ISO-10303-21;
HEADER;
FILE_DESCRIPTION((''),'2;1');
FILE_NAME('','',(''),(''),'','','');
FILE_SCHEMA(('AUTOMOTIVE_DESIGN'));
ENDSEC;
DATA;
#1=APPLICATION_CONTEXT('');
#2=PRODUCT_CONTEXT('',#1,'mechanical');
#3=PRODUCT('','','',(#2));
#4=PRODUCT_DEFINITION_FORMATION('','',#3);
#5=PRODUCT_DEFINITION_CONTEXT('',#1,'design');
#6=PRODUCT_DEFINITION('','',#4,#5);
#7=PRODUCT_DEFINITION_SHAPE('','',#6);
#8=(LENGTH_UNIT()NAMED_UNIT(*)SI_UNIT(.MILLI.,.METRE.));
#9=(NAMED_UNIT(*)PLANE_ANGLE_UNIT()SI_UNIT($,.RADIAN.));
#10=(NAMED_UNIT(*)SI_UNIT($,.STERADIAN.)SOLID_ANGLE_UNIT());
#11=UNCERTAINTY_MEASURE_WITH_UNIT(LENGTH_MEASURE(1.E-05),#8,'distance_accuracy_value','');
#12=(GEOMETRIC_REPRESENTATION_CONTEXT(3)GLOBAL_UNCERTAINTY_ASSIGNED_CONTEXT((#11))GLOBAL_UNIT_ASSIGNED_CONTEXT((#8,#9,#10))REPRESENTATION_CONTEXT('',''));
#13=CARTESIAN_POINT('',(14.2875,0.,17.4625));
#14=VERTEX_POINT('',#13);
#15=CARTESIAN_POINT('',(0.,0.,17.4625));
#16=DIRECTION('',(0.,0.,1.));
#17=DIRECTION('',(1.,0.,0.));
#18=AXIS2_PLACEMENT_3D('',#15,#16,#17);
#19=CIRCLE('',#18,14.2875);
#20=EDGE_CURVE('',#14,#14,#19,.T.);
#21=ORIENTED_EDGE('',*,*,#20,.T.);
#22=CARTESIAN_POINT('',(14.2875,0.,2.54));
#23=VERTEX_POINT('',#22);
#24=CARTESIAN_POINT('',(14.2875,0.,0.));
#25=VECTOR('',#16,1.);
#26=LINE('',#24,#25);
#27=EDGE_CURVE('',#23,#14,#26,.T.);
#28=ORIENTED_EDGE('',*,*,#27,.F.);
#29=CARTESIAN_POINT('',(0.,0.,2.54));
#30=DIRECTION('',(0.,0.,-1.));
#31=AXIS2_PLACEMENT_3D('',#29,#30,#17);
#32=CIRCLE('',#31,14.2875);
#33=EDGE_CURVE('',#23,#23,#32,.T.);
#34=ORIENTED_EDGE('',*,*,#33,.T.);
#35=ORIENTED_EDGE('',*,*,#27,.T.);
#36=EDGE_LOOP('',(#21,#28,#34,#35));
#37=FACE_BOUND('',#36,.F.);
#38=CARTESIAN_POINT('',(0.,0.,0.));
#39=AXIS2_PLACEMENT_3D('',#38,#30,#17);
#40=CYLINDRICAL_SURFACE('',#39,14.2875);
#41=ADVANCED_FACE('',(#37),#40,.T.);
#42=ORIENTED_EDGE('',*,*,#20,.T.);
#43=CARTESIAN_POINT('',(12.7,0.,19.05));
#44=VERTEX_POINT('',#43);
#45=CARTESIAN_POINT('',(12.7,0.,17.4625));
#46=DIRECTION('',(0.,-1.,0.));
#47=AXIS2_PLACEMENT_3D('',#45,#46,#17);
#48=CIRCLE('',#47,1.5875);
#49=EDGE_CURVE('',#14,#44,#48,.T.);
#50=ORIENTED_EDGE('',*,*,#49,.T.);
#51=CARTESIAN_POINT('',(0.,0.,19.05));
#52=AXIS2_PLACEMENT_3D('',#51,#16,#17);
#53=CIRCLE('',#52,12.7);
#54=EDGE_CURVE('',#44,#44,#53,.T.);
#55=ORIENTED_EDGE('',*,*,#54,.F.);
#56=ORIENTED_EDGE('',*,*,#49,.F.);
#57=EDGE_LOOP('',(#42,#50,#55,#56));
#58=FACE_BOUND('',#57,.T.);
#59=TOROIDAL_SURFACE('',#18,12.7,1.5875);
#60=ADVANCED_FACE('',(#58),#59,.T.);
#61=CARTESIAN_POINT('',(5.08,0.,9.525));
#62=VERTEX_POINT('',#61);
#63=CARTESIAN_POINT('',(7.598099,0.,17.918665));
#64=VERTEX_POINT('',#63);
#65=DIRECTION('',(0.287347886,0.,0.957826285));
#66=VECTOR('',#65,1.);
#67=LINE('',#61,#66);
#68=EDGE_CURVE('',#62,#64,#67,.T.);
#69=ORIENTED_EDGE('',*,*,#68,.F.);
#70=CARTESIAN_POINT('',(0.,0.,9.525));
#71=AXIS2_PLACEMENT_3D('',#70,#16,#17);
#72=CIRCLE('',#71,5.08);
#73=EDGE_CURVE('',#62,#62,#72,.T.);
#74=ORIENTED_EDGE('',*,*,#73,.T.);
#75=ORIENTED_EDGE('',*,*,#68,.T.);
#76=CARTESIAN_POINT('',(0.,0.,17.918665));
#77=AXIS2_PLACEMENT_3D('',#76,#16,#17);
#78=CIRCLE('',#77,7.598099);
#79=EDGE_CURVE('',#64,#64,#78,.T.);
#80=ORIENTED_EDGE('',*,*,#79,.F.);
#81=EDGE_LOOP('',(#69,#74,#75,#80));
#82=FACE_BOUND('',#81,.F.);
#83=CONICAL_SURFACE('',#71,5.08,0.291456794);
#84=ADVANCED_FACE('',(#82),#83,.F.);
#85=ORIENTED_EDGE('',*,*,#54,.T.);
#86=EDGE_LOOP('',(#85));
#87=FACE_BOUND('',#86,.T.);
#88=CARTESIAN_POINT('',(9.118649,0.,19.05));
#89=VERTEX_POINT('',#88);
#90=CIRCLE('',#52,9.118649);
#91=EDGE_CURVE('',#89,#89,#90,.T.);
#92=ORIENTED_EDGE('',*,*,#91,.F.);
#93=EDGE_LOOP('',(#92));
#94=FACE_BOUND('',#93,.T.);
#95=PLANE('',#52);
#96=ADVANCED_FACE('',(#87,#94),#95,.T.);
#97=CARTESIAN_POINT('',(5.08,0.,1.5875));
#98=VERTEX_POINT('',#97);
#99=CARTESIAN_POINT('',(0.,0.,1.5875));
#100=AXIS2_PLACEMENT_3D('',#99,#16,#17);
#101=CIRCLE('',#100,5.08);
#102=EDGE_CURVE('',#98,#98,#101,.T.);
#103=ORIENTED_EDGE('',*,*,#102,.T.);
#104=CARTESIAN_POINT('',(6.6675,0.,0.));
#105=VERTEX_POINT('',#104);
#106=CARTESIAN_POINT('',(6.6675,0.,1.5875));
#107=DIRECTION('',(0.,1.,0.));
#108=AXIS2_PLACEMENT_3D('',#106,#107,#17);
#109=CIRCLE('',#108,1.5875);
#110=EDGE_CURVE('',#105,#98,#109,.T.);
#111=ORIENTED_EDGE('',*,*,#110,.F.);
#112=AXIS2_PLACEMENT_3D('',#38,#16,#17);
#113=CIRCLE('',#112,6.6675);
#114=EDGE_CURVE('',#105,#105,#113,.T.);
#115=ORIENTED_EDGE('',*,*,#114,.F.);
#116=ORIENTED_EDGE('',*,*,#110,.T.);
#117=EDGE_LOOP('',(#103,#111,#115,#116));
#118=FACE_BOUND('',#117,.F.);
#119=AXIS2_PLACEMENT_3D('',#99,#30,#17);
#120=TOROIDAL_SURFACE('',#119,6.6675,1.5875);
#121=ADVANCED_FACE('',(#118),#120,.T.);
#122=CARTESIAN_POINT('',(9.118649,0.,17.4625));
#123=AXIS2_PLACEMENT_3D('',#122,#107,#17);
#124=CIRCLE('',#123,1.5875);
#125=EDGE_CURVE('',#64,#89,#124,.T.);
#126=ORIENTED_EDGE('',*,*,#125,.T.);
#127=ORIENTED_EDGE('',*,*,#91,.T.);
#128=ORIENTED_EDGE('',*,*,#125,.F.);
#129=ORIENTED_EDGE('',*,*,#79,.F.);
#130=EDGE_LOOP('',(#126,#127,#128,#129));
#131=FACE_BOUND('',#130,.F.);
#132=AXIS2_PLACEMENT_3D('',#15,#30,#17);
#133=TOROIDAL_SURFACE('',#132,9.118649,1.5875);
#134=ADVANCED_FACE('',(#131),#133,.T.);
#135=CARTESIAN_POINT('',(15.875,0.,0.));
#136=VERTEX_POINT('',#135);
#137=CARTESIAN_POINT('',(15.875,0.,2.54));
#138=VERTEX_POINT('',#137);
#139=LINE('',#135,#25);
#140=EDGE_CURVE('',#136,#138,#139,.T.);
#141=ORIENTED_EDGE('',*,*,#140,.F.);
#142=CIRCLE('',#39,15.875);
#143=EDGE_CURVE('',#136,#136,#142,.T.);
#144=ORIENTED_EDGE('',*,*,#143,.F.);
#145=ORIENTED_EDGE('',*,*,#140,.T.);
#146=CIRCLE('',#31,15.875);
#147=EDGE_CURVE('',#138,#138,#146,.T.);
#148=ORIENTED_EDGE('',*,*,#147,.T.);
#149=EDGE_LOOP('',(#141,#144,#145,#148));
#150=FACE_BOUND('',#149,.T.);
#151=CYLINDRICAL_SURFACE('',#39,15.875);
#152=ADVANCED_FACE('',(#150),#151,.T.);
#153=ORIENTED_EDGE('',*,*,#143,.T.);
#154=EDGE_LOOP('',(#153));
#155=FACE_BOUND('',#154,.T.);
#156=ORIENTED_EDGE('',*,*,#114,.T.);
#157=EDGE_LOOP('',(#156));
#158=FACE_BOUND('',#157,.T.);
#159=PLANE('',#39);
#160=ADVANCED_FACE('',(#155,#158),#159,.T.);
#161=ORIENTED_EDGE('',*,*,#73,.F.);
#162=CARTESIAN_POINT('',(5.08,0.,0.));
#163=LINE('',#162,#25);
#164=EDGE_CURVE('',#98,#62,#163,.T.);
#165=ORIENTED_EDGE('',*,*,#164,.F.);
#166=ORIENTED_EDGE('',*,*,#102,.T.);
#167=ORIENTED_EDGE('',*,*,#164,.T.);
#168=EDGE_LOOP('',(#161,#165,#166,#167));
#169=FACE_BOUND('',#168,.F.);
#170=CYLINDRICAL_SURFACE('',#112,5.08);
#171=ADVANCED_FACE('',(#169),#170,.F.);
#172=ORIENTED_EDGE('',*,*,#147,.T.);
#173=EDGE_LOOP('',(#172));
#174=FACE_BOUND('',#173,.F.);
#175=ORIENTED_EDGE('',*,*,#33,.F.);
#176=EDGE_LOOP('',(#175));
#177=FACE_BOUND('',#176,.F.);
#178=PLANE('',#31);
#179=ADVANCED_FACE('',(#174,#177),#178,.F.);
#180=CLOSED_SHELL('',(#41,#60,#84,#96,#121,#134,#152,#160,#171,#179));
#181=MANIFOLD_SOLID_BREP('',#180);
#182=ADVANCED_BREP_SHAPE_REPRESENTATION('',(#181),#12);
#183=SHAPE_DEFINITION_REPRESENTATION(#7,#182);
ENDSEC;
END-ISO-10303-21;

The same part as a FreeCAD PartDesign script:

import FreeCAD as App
import Part
import Sketcher
Q = App.Units.Quantity


def edges_at(feature, points):
    """Names of the edges that pass closest to the given points."""
    edges = feature.Shape.Edges
    near = lambda p: min(range(len(edges)), key=lambda i: edges[i].distToShape(Part.Vertex(*p))[0])
    return sorted({f"Edge{near(p) + 1}" for p in points})


def add_polygon(sketch, points):
    """Adds a closed chain of lines whose ends are joined by coincident constraints."""
    first, n = sketch.GeometryCount, len(points)
    for a, b in zip(points, points[1:] + points[:1]):
        sketch.addGeometry(Part.LineSegment(App.Vector(*a, 0), App.Vector(*b, 0)), False)
    for i in range(n):
        sketch.addConstraint(Sketcher.Constraint("Coincident", first + i, 2, first + (i + 1) % n, 1))

doc = App.newDocument("Part")
body = doc.addObject("PartDesign::Body", "Body")

sketch1 = body.newObject("Sketcher::SketchObject", "Sketch")
sketch1.AttachmentSupport = (doc.getObject("XY_Plane"), [""])
sketch1.MapMode = "FlatFace"
sketch1.addGeometry(Part.Circle(App.Vector(0, 0, 0), App.Vector(0, 0, 1), 14), False)
sketch1.addConstraint(Sketcher.Constraint("Coincident", 0, 3, -1, 1))
sketch1.addConstraint(Sketcher.Constraint("Diameter", 0, Q("1.125 in")))
pad1 = body.newObject("PartDesign::Pad", "Pad")
pad1.Profile = sketch1
pad1.Length = Q("0.75 in")

sketch2 = body.newObject("Sketcher::SketchObject", "Sketch001")
sketch2.AttachmentSupport = (doc.getObject("XY_Plane"), [""])
sketch2.MapMode = "FlatFace"
sketch2.addGeometry(Part.Circle(App.Vector(0, 0, 0), App.Vector(0, 0, 1), 16), False)
sketch2.addConstraint(Sketcher.Constraint("Coincident", 0, 3, -1, 1))
sketch2.addConstraint(Sketcher.Constraint("Diameter", 0, Q("1.25 in")))
pad2 = body.newObject("PartDesign::Pad", "Pad001")
pad2.Profile = sketch2
pad2.Length = Q("0.1 in")

sketch3 = body.newObject("Sketcher::SketchObject", "Sketch002")
sketch3.AttachmentSupport = (doc.getObject("XZ_Plane"), [""])
sketch3.MapMode = "FlatFace"
add_polygon(sketch3, [(0, 19), (0, 0), (5, 0), (5, 10), (8, 19)])
sketch3.addConstraint(Sketcher.Constraint("Vertical", 0))
sketch3.addConstraint(Sketcher.Constraint("Horizontal", 1))
sketch3.addConstraint(Sketcher.Constraint("Vertical", 2))
sketch3.addConstraint(Sketcher.Constraint("Horizontal", 4))
sketch3.addConstraint(Sketcher.Constraint("Coincident", 0, 2, -1, 1))
sketch3.addConstraint(Sketcher.Constraint("DistanceX", 1, 1, 1, 2, Q("0.2 in")))
sketch3.addConstraint(Sketcher.Constraint("DistanceY", 0, 2, 0, 1, Q("0.75 in")))
sketch3.addConstraint(Sketcher.Constraint("DistanceX", 4, 2, 4, 1, Q("0.3125 in")))
sketch3.addConstraint(Sketcher.Constraint("DistanceY", 2, 1, 2, 2, Q("0.375 in")))
groove = body.newObject("PartDesign::Groove", "Groove")
groove.Profile = sketch3
groove.ReferenceAxis = (sketch3, ["V_Axis"])
groove.Angle = 360
doc.recompute()

fillet = body.newObject("PartDesign::Fillet", "Fillet")
fillet.Base = (groove, edges_at(groove, [(-14.287, 0, 19.05), (-7.938, 0, 19.05), (-5.08, 0, 0)]))
fillet.Radius = Q("0.0625 in")

doc.recompute()
